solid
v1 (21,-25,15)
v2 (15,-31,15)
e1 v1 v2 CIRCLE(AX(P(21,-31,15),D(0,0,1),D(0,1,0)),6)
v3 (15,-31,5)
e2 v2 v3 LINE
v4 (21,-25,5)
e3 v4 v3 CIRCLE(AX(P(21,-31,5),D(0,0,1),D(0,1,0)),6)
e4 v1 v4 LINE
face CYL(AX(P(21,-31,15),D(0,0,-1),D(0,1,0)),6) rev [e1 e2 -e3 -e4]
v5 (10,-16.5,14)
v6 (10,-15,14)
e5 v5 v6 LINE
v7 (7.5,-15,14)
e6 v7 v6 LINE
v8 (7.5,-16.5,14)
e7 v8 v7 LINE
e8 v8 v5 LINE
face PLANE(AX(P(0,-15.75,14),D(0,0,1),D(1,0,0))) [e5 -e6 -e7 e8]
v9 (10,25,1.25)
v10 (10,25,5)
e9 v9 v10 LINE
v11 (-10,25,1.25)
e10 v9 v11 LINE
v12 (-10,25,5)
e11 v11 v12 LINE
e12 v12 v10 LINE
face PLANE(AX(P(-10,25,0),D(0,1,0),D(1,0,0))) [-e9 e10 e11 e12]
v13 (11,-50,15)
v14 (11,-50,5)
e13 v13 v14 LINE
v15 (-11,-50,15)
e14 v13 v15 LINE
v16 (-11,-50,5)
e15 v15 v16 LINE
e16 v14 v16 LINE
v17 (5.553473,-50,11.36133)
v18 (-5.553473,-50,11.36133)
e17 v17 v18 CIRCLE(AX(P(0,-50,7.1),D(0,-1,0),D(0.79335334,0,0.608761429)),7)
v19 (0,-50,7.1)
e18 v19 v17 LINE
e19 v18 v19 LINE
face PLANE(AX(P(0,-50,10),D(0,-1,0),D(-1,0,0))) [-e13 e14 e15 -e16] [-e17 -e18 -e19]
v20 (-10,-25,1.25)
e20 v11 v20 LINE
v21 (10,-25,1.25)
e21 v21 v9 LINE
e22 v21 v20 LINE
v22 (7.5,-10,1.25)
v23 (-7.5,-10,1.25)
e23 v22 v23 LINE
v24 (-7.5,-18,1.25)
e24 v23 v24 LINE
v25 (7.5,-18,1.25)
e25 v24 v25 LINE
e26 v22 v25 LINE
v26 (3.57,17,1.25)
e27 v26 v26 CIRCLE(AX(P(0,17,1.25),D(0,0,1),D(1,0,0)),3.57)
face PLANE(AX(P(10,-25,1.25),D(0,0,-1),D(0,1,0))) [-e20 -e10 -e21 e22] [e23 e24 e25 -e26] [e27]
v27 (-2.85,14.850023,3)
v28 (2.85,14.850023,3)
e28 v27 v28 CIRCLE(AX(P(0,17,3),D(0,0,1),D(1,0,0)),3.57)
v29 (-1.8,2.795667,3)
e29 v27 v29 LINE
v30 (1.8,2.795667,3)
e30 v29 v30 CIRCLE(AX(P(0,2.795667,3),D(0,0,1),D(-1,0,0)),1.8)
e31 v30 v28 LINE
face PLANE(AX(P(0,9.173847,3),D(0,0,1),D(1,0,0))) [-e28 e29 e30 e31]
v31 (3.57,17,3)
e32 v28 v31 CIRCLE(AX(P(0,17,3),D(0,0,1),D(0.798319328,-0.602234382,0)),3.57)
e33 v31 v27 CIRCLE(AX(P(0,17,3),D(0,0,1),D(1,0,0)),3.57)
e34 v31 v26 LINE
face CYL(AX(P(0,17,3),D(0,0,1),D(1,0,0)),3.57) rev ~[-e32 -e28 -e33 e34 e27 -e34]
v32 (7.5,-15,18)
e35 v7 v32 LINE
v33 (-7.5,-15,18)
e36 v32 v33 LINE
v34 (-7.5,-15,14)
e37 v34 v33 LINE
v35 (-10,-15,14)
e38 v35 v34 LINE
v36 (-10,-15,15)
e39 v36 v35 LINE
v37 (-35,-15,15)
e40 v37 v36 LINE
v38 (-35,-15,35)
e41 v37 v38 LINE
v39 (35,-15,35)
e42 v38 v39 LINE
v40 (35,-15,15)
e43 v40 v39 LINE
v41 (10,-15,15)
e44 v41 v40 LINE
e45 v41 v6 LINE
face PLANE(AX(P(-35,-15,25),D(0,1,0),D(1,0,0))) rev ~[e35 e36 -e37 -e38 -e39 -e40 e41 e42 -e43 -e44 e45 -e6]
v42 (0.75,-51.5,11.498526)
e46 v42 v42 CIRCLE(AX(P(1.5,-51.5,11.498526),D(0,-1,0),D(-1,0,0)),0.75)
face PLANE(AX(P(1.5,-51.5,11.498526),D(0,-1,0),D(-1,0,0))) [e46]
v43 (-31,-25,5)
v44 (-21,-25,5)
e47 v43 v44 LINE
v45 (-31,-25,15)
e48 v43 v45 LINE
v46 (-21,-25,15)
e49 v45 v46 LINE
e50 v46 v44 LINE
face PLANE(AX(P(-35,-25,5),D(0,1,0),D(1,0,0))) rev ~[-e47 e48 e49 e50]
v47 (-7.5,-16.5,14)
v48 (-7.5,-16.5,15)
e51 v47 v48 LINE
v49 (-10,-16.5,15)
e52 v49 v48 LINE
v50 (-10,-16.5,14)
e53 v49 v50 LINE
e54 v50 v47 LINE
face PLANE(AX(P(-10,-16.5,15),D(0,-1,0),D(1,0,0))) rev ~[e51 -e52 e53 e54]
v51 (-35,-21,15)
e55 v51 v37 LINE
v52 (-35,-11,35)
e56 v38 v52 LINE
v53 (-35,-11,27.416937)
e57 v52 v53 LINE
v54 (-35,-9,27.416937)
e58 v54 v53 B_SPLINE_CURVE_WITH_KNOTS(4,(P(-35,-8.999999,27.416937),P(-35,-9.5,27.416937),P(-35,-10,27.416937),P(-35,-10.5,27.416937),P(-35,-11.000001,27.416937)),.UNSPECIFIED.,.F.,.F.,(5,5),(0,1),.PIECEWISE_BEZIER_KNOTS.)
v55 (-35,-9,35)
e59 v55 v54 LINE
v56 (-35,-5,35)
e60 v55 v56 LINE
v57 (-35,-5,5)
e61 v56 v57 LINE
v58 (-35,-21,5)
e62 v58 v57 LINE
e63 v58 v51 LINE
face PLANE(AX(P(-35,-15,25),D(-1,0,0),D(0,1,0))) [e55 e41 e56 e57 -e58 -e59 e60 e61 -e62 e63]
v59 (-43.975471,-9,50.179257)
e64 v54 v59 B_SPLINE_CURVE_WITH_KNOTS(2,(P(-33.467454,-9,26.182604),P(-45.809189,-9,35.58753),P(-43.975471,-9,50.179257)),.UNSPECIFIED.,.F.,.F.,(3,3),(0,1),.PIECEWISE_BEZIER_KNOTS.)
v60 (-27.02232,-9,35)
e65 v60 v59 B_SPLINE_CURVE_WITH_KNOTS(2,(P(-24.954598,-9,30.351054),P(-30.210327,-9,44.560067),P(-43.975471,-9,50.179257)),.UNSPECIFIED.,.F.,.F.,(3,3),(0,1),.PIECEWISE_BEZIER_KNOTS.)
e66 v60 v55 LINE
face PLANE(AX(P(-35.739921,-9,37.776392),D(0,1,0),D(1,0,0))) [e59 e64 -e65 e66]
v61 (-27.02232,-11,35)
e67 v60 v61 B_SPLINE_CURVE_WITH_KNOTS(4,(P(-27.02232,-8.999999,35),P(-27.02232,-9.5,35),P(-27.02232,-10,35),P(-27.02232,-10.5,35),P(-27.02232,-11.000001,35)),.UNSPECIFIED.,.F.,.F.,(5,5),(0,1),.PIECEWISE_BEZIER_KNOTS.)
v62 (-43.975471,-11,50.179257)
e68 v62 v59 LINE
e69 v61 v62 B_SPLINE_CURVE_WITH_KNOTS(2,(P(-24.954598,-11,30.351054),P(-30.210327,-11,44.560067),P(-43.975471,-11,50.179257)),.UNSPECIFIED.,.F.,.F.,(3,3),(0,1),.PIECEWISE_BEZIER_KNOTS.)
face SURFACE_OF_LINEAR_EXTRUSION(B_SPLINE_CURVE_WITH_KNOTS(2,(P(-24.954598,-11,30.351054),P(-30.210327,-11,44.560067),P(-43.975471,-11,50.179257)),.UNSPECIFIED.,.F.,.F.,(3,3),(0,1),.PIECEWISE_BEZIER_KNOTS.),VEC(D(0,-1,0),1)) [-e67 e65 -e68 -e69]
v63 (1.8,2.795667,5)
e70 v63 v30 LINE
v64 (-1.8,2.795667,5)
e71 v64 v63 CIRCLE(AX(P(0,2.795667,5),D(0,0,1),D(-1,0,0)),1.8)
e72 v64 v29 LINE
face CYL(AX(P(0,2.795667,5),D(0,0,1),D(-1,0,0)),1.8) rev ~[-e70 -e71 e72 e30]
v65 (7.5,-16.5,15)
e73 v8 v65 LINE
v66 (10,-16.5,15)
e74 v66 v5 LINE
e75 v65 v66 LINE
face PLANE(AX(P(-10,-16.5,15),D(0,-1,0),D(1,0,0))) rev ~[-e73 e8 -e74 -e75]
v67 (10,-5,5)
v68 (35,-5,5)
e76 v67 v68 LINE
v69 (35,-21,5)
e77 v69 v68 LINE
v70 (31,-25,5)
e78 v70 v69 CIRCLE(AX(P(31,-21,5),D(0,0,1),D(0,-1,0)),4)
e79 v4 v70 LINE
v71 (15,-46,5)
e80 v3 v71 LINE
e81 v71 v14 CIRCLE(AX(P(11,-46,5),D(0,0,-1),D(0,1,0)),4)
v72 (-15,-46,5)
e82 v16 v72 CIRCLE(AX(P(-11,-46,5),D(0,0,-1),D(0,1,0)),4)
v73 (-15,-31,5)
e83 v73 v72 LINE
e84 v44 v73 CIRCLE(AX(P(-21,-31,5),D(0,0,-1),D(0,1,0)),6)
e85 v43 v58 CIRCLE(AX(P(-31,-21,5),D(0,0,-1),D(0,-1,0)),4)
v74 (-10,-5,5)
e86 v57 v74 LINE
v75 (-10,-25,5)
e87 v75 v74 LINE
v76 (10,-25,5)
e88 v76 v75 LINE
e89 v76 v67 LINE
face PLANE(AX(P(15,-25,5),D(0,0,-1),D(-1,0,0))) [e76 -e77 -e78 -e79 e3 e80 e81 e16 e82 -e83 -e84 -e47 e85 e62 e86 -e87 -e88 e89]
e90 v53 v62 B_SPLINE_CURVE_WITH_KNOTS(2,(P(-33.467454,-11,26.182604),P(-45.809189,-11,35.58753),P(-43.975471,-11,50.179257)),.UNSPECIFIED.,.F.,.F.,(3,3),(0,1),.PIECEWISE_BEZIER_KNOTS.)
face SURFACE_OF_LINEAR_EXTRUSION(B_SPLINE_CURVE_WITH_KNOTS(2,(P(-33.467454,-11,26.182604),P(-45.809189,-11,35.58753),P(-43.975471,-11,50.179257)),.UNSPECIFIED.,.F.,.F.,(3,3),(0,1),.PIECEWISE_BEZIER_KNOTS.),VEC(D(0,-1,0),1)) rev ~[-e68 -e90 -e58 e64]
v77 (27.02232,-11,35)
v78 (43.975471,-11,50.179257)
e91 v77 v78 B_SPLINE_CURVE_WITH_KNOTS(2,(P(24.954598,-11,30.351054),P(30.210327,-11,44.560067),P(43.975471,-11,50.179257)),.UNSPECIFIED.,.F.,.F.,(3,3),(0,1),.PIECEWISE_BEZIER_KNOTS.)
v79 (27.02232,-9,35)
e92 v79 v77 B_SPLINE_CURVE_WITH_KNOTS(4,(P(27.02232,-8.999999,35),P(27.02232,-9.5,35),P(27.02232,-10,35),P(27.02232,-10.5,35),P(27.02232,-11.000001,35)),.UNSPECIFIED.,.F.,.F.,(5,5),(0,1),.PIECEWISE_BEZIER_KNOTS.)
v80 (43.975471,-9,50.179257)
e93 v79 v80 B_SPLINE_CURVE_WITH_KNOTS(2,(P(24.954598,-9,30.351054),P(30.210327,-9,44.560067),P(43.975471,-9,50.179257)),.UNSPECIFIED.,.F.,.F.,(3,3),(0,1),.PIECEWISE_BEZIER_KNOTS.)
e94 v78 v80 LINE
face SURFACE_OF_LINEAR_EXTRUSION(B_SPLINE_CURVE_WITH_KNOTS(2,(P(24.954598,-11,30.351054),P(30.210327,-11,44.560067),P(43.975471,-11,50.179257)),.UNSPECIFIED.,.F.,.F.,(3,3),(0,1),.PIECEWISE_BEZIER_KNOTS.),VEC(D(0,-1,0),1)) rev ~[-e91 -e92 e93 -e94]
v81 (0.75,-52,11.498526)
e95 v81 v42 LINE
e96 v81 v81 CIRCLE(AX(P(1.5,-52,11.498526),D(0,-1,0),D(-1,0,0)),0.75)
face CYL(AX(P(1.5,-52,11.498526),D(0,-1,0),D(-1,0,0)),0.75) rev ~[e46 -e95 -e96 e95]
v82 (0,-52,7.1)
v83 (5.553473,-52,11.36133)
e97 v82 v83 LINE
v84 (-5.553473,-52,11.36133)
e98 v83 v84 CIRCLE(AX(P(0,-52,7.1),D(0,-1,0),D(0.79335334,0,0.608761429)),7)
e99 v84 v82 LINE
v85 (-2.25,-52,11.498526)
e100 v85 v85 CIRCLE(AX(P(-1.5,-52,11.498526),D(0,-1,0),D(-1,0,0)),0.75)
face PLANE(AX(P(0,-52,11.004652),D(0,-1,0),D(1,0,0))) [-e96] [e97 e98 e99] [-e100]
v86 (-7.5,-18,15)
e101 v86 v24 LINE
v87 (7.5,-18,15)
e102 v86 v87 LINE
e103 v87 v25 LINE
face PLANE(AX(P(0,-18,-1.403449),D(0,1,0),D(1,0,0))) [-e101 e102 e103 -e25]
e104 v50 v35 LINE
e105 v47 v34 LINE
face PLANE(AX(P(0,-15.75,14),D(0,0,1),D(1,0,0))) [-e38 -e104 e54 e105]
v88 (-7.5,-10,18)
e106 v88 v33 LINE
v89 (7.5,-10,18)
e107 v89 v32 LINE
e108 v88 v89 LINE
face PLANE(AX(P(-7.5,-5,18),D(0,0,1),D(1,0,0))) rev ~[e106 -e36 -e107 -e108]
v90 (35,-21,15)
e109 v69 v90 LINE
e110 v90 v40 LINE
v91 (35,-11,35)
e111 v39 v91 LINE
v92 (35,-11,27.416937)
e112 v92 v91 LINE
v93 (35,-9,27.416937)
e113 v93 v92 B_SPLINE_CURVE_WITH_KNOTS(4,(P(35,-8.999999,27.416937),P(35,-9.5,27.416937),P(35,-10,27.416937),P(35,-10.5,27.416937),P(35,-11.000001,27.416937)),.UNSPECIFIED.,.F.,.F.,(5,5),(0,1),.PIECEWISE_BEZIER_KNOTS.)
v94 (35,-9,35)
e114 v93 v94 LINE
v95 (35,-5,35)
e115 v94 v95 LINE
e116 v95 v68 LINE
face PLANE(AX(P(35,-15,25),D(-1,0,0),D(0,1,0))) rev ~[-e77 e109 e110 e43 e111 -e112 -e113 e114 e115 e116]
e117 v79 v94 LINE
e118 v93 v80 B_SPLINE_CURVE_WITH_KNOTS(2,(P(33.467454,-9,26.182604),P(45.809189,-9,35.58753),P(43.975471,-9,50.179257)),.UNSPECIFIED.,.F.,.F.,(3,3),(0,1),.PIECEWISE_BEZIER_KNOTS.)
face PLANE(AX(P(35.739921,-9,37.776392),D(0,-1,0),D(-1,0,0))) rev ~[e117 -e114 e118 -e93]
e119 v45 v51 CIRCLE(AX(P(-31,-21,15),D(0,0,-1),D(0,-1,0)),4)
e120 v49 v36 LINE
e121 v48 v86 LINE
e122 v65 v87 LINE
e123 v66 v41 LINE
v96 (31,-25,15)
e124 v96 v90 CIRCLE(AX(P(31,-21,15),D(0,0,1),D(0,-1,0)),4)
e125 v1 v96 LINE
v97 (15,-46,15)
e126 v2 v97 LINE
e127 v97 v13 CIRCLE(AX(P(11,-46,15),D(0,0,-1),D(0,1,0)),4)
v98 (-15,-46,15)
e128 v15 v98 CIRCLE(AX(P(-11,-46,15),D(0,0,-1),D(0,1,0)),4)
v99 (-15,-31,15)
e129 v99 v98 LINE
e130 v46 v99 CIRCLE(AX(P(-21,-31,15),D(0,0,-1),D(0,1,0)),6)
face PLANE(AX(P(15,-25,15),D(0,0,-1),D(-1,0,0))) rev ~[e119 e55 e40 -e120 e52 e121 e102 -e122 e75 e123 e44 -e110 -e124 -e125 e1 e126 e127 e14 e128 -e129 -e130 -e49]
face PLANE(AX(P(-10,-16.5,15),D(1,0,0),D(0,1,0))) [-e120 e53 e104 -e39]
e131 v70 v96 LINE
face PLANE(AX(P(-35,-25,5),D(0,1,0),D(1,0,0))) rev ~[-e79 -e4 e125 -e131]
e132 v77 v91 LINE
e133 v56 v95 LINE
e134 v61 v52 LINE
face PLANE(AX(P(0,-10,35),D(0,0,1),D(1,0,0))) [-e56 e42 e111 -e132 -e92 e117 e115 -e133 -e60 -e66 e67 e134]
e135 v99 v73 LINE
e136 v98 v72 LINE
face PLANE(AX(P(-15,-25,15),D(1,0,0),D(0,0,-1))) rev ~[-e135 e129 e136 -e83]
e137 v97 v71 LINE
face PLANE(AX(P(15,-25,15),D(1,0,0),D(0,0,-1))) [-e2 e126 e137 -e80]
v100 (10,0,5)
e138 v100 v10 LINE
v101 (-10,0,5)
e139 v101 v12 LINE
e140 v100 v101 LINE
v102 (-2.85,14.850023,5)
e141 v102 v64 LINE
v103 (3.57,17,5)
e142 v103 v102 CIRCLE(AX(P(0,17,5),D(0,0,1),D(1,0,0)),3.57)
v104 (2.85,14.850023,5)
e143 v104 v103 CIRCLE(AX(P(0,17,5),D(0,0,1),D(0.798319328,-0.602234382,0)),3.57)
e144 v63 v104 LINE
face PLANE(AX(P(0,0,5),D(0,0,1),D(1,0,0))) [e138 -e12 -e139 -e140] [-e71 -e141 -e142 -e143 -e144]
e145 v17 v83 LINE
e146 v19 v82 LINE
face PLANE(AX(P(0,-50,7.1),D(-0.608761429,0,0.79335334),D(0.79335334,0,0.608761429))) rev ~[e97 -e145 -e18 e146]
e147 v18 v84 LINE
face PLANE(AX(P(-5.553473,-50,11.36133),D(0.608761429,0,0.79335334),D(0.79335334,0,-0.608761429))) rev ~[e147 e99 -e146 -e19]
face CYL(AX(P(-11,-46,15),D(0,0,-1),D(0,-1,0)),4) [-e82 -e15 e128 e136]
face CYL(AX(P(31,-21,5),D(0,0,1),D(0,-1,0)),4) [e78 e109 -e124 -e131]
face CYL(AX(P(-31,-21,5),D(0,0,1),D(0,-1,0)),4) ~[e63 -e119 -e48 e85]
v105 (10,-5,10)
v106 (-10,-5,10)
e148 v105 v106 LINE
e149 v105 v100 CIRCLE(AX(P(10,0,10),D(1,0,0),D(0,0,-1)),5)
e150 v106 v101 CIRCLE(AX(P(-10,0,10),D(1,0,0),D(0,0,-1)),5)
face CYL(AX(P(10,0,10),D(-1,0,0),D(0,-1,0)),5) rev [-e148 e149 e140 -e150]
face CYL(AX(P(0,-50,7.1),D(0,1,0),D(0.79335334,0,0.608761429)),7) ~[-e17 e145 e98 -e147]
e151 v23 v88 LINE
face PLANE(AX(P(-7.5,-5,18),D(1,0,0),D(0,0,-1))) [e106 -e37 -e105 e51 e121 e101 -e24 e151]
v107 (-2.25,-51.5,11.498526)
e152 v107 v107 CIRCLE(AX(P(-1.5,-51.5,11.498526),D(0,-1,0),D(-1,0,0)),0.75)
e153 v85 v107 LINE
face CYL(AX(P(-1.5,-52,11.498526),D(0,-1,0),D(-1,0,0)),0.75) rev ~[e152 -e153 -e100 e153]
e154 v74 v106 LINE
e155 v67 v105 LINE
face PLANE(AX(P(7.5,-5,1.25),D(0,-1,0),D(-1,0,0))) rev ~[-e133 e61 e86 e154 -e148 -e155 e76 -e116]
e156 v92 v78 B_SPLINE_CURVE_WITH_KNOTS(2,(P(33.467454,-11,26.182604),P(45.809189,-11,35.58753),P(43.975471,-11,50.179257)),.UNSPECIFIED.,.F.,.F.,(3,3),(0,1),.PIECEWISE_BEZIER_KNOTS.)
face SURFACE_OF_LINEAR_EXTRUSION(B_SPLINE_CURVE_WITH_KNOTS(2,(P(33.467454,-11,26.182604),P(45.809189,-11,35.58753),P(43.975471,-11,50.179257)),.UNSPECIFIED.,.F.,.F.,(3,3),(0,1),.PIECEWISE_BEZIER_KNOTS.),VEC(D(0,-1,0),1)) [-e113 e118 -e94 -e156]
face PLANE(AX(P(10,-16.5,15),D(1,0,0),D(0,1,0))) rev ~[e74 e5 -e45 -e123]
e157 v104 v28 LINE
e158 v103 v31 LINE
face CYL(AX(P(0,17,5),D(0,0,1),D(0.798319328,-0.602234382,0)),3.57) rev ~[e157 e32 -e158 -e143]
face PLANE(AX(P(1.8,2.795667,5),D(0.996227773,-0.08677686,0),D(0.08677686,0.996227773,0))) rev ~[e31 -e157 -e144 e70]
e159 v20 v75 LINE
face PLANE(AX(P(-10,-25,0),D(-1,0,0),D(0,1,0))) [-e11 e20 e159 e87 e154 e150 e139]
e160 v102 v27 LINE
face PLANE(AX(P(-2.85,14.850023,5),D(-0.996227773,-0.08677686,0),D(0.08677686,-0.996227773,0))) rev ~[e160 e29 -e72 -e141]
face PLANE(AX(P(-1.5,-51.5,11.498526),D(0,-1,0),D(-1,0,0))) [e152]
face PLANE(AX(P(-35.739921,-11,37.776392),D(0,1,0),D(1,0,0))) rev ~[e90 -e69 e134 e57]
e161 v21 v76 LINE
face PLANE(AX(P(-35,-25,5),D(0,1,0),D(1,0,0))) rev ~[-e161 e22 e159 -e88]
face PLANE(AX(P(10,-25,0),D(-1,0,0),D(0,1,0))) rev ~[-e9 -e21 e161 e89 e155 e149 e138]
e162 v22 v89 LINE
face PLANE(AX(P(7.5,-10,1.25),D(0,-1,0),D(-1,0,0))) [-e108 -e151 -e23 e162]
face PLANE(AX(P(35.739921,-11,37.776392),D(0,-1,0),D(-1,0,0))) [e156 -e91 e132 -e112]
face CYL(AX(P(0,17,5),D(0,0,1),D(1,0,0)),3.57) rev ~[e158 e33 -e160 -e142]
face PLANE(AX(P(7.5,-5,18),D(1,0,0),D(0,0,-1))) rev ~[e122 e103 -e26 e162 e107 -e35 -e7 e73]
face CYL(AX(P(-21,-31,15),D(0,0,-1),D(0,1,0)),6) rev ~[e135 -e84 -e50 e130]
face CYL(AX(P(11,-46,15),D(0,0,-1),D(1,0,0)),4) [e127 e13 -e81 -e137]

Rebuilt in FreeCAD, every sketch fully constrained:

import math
import FreeCAD as App
import Part
import Sketcher

V = App.Vector
Q = App.Units.Quantity


def edges_at(feature, points):
    """Names of the edges that pass closest to the given points."""
    edges = feature.Shape.Edges
    near = lambda p: min(range(len(edges)), key=lambda i: edges[i].distToShape(Part.Vertex(*p))[0])
    return sorted({f"Edge{near(p) + 1}" for p in points})

doc = App.newDocument("Part")
params = doc.addObject("Spreadsheet::Sheet", "Params")
for row, (alias, value) in enumerate([
    ("sketch1_width", "20 mm"),
    ("sketch1_height", "50 mm"),
    ("pad1_length", "5 mm"),
    ("sketch2_radius", "1.8 mm"),
    ("sketch2_radius2", "3.57 mm"),
    ("sketch2_length", "12.1 mm"),
    ("pocket1_length", "2 mm"),
    ("sketch3_diameter", "7.14 mm"),
    ("pocket2_length", "3 mm"),
    ("sketch4_width", "50 mm"),
    ("sketch4_height", "1.25 mm"),
    ("pocket3_length", "30 mm"),
    ("sketch5_width", "70 mm"),
    ("sketch5_height", "20 mm"),
    ("pad2_length", "20 mm"),
    ("sketch6_width", "70 mm"),
    ("sketch6_height", "10 mm"),
    ("pocket4_length", "10 mm"),
    ("sketch7_width", "30 mm"),
    ("sketch7_height", "10 mm"),
    ("pad3_length", "25 mm"),
    ("sketch8_width", "20 mm"),
    ("sketch8_height", "1.5 mm"),
    ("pocket5_length", "1 mm"),
    ("sketch9_width", "15 mm"),
    ("pocket6_length", "13 mm"),
    ("sketch10_radius", "7 mm"),
    ("pad4_length", "2 mm"),
    ("sketch11_diameter", "1.5 mm"),
    ("pocket7_length", "0.5 mm"),
    ("sketch12_width", "70 mm"),
    ("sketch12_height", "10 mm"),
    ("pad5_length", "10 mm"),
    ("pad6_length", "2 mm"),
    ("fillet_radius", "6 mm"),
    ("fillet2_radius", "4 mm"),
    ("sketch14_width", "15 mm"),
    ("sketch14_height", "5 mm"),
    ("pad7_length", "25 mm"),
    ("fillet3_radius", "5 mm"),
], start=1):
    params.set(f"A{row}", alias)
    params.set(f"B{row}", "=" + value)
    params.setAlias(f"B{row}", alias)

body = doc.addObject("PartDesign::Body", "Body")

sketch1 = body.newObject("Sketcher::SketchObject", "Sketch")
sketch1.AttachmentSupport = (doc.getObject("XY_Plane"), [""])
sketch1.MapMode = "FlatFace"
sketch1.addGeometry(Part.LineSegment(V(-10, 25, 0), V(-10, -25, 0)), False)
sketch1.addGeometry(Part.LineSegment(V(-10, -25, 0), V(10, -25, 0)), False)
sketch1.addGeometry(Part.LineSegment(V(10, -25, 0), V(10, 25, 0)), False)
sketch1.addGeometry(Part.LineSegment(V(10, 25, 0), V(-10, 25, 0)), False)
sketch1.addConstraint(Sketcher.Constraint("Coincident", 0, 2, 1, 1))
sketch1.addConstraint(Sketcher.Constraint("Coincident", 1, 2, 2, 1))
sketch1.addConstraint(Sketcher.Constraint("Coincident", 2, 2, 3, 1))
sketch1.addConstraint(Sketcher.Constraint("Coincident", 3, 2, 0, 1))
sketch1.addConstraint(Sketcher.Constraint("Vertical", 0))
sketch1.addConstraint(Sketcher.Constraint("Horizontal", 1))
sketch1.addConstraint(Sketcher.Constraint("Vertical", 2))
sketch1.addConstraint(Sketcher.Constraint("Horizontal", 3))
sketch1.addConstraint(Sketcher.Constraint("Symmetric", 0, 2, 2, 2, -1, 1))
sketch1.addConstraint(Sketcher.Constraint("DistanceX", 1, 1, 1, 2, Q("20 mm")))
sketch1.addConstraint(Sketcher.Constraint("DistanceY", 0, 2, 0, 1, Q("50 mm")))
sketch1.setExpression("Constraints[9]", "Params.sketch1_width")
sketch1.setExpression("Constraints[10]", "Params.sketch1_height")
pad1 = body.newObject("PartDesign::Pad", "Pad")
pad1.Profile = sketch1
pad1.setExpression("Length", "Params.pad1_length")

sketch2 = body.newObject("Sketcher::SketchObject", "Sketch001")
sketch2.AttachmentSupport = (doc.getObject("XY_Plane"), [""])
sketch2.MapMode = "FlatFace"
sketch2.AttachmentOffset = App.Placement(V(0, 0, 5), App.Rotation())
sketch2.addGeometry(Part.LineSegment(V(-2.9, 14.9, 0), V(-1.8, 2.8, 0)), False)
sketch2.addGeometry(Part.ArcOfCircle(Part.Circle(V(0, 2.8, 0), V(0, 0, 1), 1.8), math.radians(180), math.radians(360)), False)
sketch2.addGeometry(Part.LineSegment(V(1.8, 2.8, 0), V(2.9, 14.9, 0)), False)
sketch2.addGeometry(Part.ArcOfCircle(Part.Circle(V(0, 17, 0), V(0, 0, 1), 3.6), math.radians(-37), math.radians(0)), False)
sketch2.addGeometry(Part.ArcOfCircle(Part.Circle(V(0, 17, 0), V(0, 0, 1), 3.6), math.radians(0), math.radians(217)), False)
sketch2.addConstraint(Sketcher.Constraint("Coincident", 0, 2, 1, 1))
sketch2.addConstraint(Sketcher.Constraint("Coincident", 1, 2, 2, 1))
sketch2.addConstraint(Sketcher.Constraint("Coincident", 2, 2, 3, 1))
sketch2.addConstraint(Sketcher.Constraint("Tangent", 3, 2, 4, 1))
sketch2.addConstraint(Sketcher.Constraint("Coincident", 4, 2, 0, 1))
sketch2.addConstraint(Sketcher.Constraint("Equal", 3, 4))
sketch2.addConstraint(Sketcher.Constraint("Symmetric", 0, 2, 1, 2, -2))
sketch2.addConstraint(Sketcher.Constraint("Symmetric", 2, 2, 4, 2, -2))
sketch2.addConstraint(Sketcher.Constraint("Horizontal", 1, 3, 0, 2))
sketch2.addConstraint(Sketcher.Constraint("Horizontal", 4, 3, 3, 2))
sketch2.addConstraint(Sketcher.Constraint("Radius", 1, Q("1.8 mm")))
sketch2.addConstraint(Sketcher.Constraint("Radius", 3, Q("3.57 mm")))
sketch2.addConstraint(Sketcher.Constraint("DistanceY", -1, 1, 3, 3, Q("17 mm")))
sketch2.addConstraint(Sketcher.Constraint("Distance", 0, Q("12.1 mm")))
sketch2.addConstraint(Sketcher.Constraint("DistanceX", 4, 2, 2, 2, Q("5.7 mm")))
sketch2.setExpression("Constraints[10]", "Params.sketch2_radius")
sketch2.setExpression("Constraints[11]", "Params.sketch2_radius2")
sketch2.setExpression("Constraints[13]", "Params.sketch2_length")
pocket1 = body.newObject("PartDesign::Pocket", "Pocket")
pocket1.Profile = sketch2
pocket1.setExpression("Length", "Params.pocket1_length")

sketch3 = body.newObject("Sketcher::SketchObject", "Sketch002")
sketch3.AttachmentSupport = (doc.getObject("XY_Plane"), [""])
sketch3.MapMode = "FlatFace"
sketch3.AttachmentOffset = App.Placement(V(0, 0, 3), App.Rotation())
sketch3.addGeometry(Part.Circle(V(0, 17, 0), V(0, 0, 1), 3.6), False)
sketch3.addConstraint(Sketcher.Constraint("PointOnObject", 0, 3, -2))
sketch3.addConstraint(Sketcher.Constraint("Diameter", 0, Q("7.14 mm")))
sketch3.addConstraint(Sketcher.Constraint("DistanceY", -1, 1, 0, 3, Q("17 mm")))
sketch3.setExpression("Constraints[1]", "Params.sketch3_diameter")
pocket2 = body.newObject("PartDesign::Pocket", "Pocket001")
pocket2.Profile = sketch3
pocket2.setExpression("Length", "Params.pocket2_length")

sketch4 = body.newObject("Sketcher::SketchObject", "Sketch003")
sketch4.AttachmentSupport = (doc.getObject("YZ_Plane"), [""])
sketch4.MapMode = "FlatFace"
sketch4.AttachmentOffset = App.Placement(V(0, 0, 10), App.Rotation())
sketch4.addGeometry(Part.LineSegment(V(25, 1.2, 0), V(-25, 1.2, 0)), False)
sketch4.addGeometry(Part.LineSegment(V(-25, 1.2, 0), V(-25, 0, 0)), False)
sketch4.addGeometry(Part.LineSegment(V(-25, 0, 0), V(25, 0, 0)), False)
sketch4.addGeometry(Part.LineSegment(V(25, 0, 0), V(25, 1.2, 0)), False)
sketch4.addConstraint(Sketcher.Constraint("Coincident", 0, 2, 1, 1))
sketch4.addConstraint(Sketcher.Constraint("Coincident", 1, 2, 2, 1))
sketch4.addConstraint(Sketcher.Constraint("Coincident", 2, 2, 3, 1))
sketch4.addConstraint(Sketcher.Constraint("Coincident", 3, 2, 0, 1))
sketch4.addConstraint(Sketcher.Constraint("Horizontal", 0))
sketch4.addConstraint(Sketcher.Constraint("Vertical", 1))
sketch4.addConstraint(Sketcher.Constraint("Horizontal", 2))
sketch4.addConstraint(Sketcher.Constraint("Vertical", 3))
sketch4.addConstraint(Sketcher.Constraint("Symmetric", 1, 2, 2, 2, -1, 1))
sketch4.addConstraint(Sketcher.Constraint("DistanceX", 0, 2, 0, 1, Q("50 mm")))
sketch4.addConstraint(Sketcher.Constraint("DistanceY", 1, 2, 1, 1, Q("1.25 mm")))
sketch4.setExpression("Constraints[9]", "Params.sketch4_width")
sketch4.setExpression("Constraints[10]", "Params.sketch4_height")
pocket3 = body.newObject("PartDesign::Pocket", "Pocket002")
pocket3.Profile = sketch4
pocket3.setExpression("Length", "Params.pocket3_length")

sketch5 = body.newObject("Sketcher::SketchObject", "Sketch004")
sketch5.AttachmentSupport = (doc.getObject("XY_Plane"), [""])
sketch5.MapMode = "FlatFace"
sketch5.AttachmentOffset = App.Placement(V(0, 0, 5), App.Rotation())
sketch5.addGeometry(Part.LineSegment(V(-35, -5, 0), V(-35, -25, 0)), False)
sketch5.addGeometry(Part.LineSegment(V(-35, -25, 0), V(35, -25, 0)), False)
sketch5.addGeometry(Part.LineSegment(V(35, -25, 0), V(35, -5, 0)), False)
sketch5.addGeometry(Part.LineSegment(V(35, -5, 0), V(-35, -5, 0)), False)
sketch5.addConstraint(Sketcher.Constraint("Coincident", 0, 2, 1, 1))
sketch5.addConstraint(Sketcher.Constraint("Coincident", 1, 2, 2, 1))
sketch5.addConstraint(Sketcher.Constraint("Coincident", 2, 2, 3, 1))
sketch5.addConstraint(Sketcher.Constraint("Coincident", 3, 2, 0, 1))
sketch5.addConstraint(Sketcher.Constraint("Vertical", 0))
sketch5.addConstraint(Sketcher.Constraint("Horizontal", 1))
sketch5.addConstraint(Sketcher.Constraint("Vertical", 2))
sketch5.addConstraint(Sketcher.Constraint("Horizontal", 3))
sketch5.addConstraint(Sketcher.Constraint("DistanceX", 1, 1, 1, 2, Q("70 mm")))
sketch5.addConstraint(Sketcher.Constraint("DistanceY", 0, 2, 0, 1, Q("20 mm")))
sketch5.addConstraint(Sketcher.Constraint("DistanceX", 0, 2, -1, 1, Q("35 mm")))
sketch5.addConstraint(Sketcher.Constraint("DistanceY", 0, 2, -1, 1, Q("25 mm")))
sketch5.setExpression("Constraints[8]", "Params.sketch5_width")
sketch5.setExpression("Constraints[9]", "Params.sketch5_height")
pad2 = body.newObject("PartDesign::Pad", "Pad001")
pad2.Profile = sketch5
pad2.setExpression("Length", "Params.pad2_length")

sketch6 = body.newObject("Sketcher::SketchObject", "Sketch005")
sketch6.AttachmentSupport = (doc.getObject("XY_Plane"), [""])
sketch6.MapMode = "FlatFace"
sketch6.AttachmentOffset = App.Placement(V(0, 0, 25), App.Rotation())
sketch6.addGeometry(Part.LineSegment(V(-35, -15, 0), V(-35, -25, 0)), False)
sketch6.addGeometry(Part.LineSegment(V(-35, -25, 0), V(35, -25, 0)), False)
sketch6.addGeometry(Part.LineSegment(V(35, -25, 0), V(35, -15, 0)), False)
sketch6.addGeometry(Part.LineSegment(V(35, -15, 0), V(-35, -15, 0)), False)
sketch6.addConstraint(Sketcher.Constraint("Coincident", 0, 2, 1, 1))
sketch6.addConstraint(Sketcher.Constraint("Coincident", 1, 2, 2, 1))
sketch6.addConstraint(Sketcher.Constraint("Coincident", 2, 2, 3, 1))
sketch6.addConstraint(Sketcher.Constraint("Coincident", 3, 2, 0, 1))
sketch6.addConstraint(Sketcher.Constraint("Vertical", 0))
sketch6.addConstraint(Sketcher.Constraint("Horizontal", 1))
sketch6.addConstraint(Sketcher.Constraint("Vertical", 2))
sketch6.addConstraint(Sketcher.Constraint("Horizontal", 3))
sketch6.addConstraint(Sketcher.Constraint("DistanceX", 1, 1, 1, 2, Q("70 mm")))
sketch6.addConstraint(Sketcher.Constraint("DistanceY", 0, 2, 0, 1, Q("10 mm")))
sketch6.addConstraint(Sketcher.Constraint("DistanceX", 0, 2, -1, 1, Q("35 mm")))
sketch6.addConstraint(Sketcher.Constraint("DistanceY", 0, 2, -1, 1, Q("25 mm")))
sketch6.setExpression("Constraints[8]", "Params.sketch6_width")
sketch6.setExpression("Constraints[9]", "Params.sketch6_height")
pocket4 = body.newObject("PartDesign::Pocket", "Pocket003")
pocket4.Profile = sketch6
pocket4.setExpression("Length", "Params.pocket4_length")

sketch7 = body.newObject("Sketcher::SketchObject", "Sketch006")
sketch7.AttachmentSupport = (doc.getObject("XZ_Plane"), [""])
sketch7.MapMode = "FlatFace"
sketch7.AttachmentOffset = App.Placement(V(0, 0, 25), App.Rotation())
sketch7.addGeometry(Part.LineSegment(V(15, 5, 0), V(15, 15, 0)), False)
sketch7.addGeometry(Part.LineSegment(V(15, 15, 0), V(-15, 15, 0)), False)
sketch7.addGeometry(Part.LineSegment(V(-15, 15, 0), V(-15, 5, 0)), False)
sketch7.addGeometry(Part.LineSegment(V(-15, 5, 0), V(15, 5, 0)), False)
sketch7.addConstraint(Sketcher.Constraint("Coincident", 0, 2, 1, 1))
sketch7.addConstraint(Sketcher.Constraint("Coincident", 1, 2, 2, 1))
sketch7.addConstraint(Sketcher.Constraint("Coincident", 2, 2, 3, 1))
sketch7.addConstraint(Sketcher.Constraint("Coincident", 3, 2, 0, 1))
sketch7.addConstraint(Sketcher.Constraint("Vertical", 0))
sketch7.addConstraint(Sketcher.Constraint("Horizontal", 1))
sketch7.addConstraint(Sketcher.Constraint("Vertical", 2))
sketch7.addConstraint(Sketcher.Constraint("Horizontal", 3))
sketch7.addConstraint(Sketcher.Constraint("DistanceX", 1, 2, 1, 1, Q("30 mm")))
sketch7.addConstraint(Sketcher.Constraint("DistanceY", 0, 1, 0, 2, Q("10 mm")))
sketch7.addConstraint(Sketcher.Constraint("DistanceX", -1, 1, 0, 2, Q("15 mm")))
sketch7.addConstraint(Sketcher.Constraint("DistanceY", -1, 1, 0, 2, Q("15 mm")))
sketch7.setExpression("Constraints[8]", "Params.sketch7_width")
sketch7.setExpression("Constraints[9]", "Params.sketch7_height")
pad3 = body.newObject("PartDesign::Pad", "Pad002")
pad3.Profile = sketch7
pad3.setExpression("Length", "Params.pad3_length")

sketch8 = body.newObject("Sketcher::SketchObject", "Sketch007")
sketch8.AttachmentSupport = (doc.getObject("XY_Plane"), [""])
sketch8.MapMode = "FlatFace"
sketch8.AttachmentOffset = App.Placement(V(0, 0, 15), App.Rotation())
sketch8.addGeometry(Part.LineSegment(V(-10, -15, 0), V(-10, -16.5, 0)), False)
sketch8.addGeometry(Part.LineSegment(V(-10, -16.5, 0), V(10, -16.5, 0)), False)
sketch8.addGeometry(Part.LineSegment(V(10, -16.5, 0), V(10, -15, 0)), False)
sketch8.addGeometry(Part.LineSegment(V(10, -15, 0), V(-10, -15, 0)), False)
sketch8.addConstraint(Sketcher.Constraint("Coincident", 0, 2, 1, 1))
sketch8.addConstraint(Sketcher.Constraint("Coincident", 1, 2, 2, 1))
sketch8.addConstraint(Sketcher.Constraint("Coincident", 2, 2, 3, 1))
sketch8.addConstraint(Sketcher.Constraint("Coincident", 3, 2, 0, 1))
sketch8.addConstraint(Sketcher.Constraint("Vertical", 0))
sketch8.addConstraint(Sketcher.Constraint("Horizontal", 1))
sketch8.addConstraint(Sketcher.Constraint("Vertical", 2))
sketch8.addConstraint(Sketcher.Constraint("Horizontal", 3))
sketch8.addConstraint(Sketcher.Constraint("DistanceX", 1, 1, 1, 2, Q("20 mm")))
sketch8.addConstraint(Sketcher.Constraint("DistanceY", 0, 2, 0, 1, Q("1.5 mm")))
sketch8.addConstraint(Sketcher.Constraint("DistanceX", 0, 2, -1, 1, Q("10 mm")))
sketch8.addConstraint(Sketcher.Constraint("DistanceY", 2, 2, -1, 1, Q("15 mm")))
sketch8.setExpression("Constraints[8]", "Params.sketch8_width")
sketch8.setExpression("Constraints[9]", "Params.sketch8_height")
pocket5 = body.newObject("PartDesign::Pocket", "Pocket004")
pocket5.Profile = sketch8
pocket5.setExpression("Length", "Params.pocket5_length")

sketch9 = body.newObject("Sketcher::SketchObject", "Sketch008")
sketch9.AttachmentSupport = (doc.getObject("XZ_Plane"), [""])
sketch9.MapMode = "FlatFace"
sketch9.AttachmentOffset = App.Placement(V(0, 0, 5), App.Rotation())
sketch9.addGeometry(Part.LineSegment(V(-8, -21, 0), V(-8, 18, 0)), False)
sketch9.addGeometry(Part.LineSegment(V(-8, 18, 0), V(8, 18, 0)), False)
sketch9.addGeometry(Part.LineSegment(V(8, 18, 0), V(8, -21, 0)), False)
sketch9.addGeometry(Part.LineSegment(V(8, -21, 0), V(-8, -21, 0)), False)
sketch9.addConstraint(Sketcher.Constraint("Coincident", 0, 2, 1, 1))
sketch9.addConstraint(Sketcher.Constraint("Coincident", 1, 2, 2, 1))
sketch9.addConstraint(Sketcher.Constraint("Coincident", 2, 2, 3, 1))
sketch9.addConstraint(Sketcher.Constraint("Coincident", 3, 2, 0, 1))
sketch9.addConstraint(Sketcher.Constraint("Vertical", 0))
sketch9.addConstraint(Sketcher.Constraint("Horizontal", 1))
sketch9.addConstraint(Sketcher.Constraint("Vertical", 2))
sketch9.addConstraint(Sketcher.Constraint("Horizontal", 3))
sketch9.addConstraint(Sketcher.Constraint("DistanceX", 1, 1, 1, 2, Q("15 mm")))
sketch9.addConstraint(Sketcher.Constraint("DistanceY", -1, 1, 0, 2, Q("18 mm")))
sketch9.addConstraint(Sketcher.Constraint("DistanceX", 0, 2, -1, 1, Q("7.5 mm")))
sketch9.addConstraint(Sketcher.Constraint("DistanceY", 0, 1, 0, 2, Q("38.806899 mm")))
sketch9.setExpression("Constraints[8]", "Params.sketch9_width")
pocket6 = body.newObject("PartDesign::Pocket", "Pocket005")
pocket6.Profile = sketch9
pocket6.setExpression("Length", "Params.pocket6_length")
pocket6.Reversed = True

sketch10 = body.newObject("Sketcher::SketchObject", "Sketch009")
sketch10.AttachmentSupport = (doc.getObject("XZ_Plane"), [""])
sketch10.MapMode = "FlatFace"
sketch10.AttachmentOffset = App.Placement(V(0, 0, 50), App.Rotation())
sketch10.addGeometry(Part.LineSegment(V(0, 7, 0), V(6, 11, 0)), False)
sketch10.addGeometry(Part.ArcOfCircle(Part.Circle(V(0, 7, 0), V(0, 0, 1), 7), math.radians(37), math.radians(143)), False)
sketch10.addGeometry(Part.LineSegment(V(-6, 11, 0), V(0, 7, 0)), False)
sketch10.addConstraint(Sketcher.Constraint("Coincident", 0, 2, 1, 1))
sketch10.addConstraint(Sketcher.Constraint("Coincident", 1, 2, 2, 1))
sketch10.addConstraint(Sketcher.Constraint("Coincident", 2, 2, 0, 1))
sketch10.addConstraint(Sketcher.Constraint("Coincident", 2, 2, 1, 3))
sketch10.addConstraint(Sketcher.Constraint("Symmetric", 0, 2, 1, 2, -2))
sketch10.addConstraint(Sketcher.Constraint("Radius", 1, Q("7 mm")))
sketch10.addConstraint(Sketcher.Constraint("Angle", 0, Q("37.5 deg")))
sketch10.addConstraint(Sketcher.Constraint("DistanceY", -1, 1, 1, 3, Q("7.1 mm")))
sketch10.setExpression("Constraints[5]", "Params.sketch10_radius")
pad4 = body.newObject("PartDesign::Pad", "Pad003")
pad4.Profile = sketch10
pad4.setExpression("Length", "Params.pad4_length")

sketch11 = body.newObject("Sketcher::SketchObject", "Sketch010")
sketch11.AttachmentSupport = (doc.getObject("XZ_Plane"), [""])
sketch11.MapMode = "FlatFace"
sketch11.AttachmentOffset = App.Placement(V(0, 0, 52), App.Rotation())
sketch11.addGeometry(Part.Circle(V(1.5, 11.5, 0), V(0, 0, 1), 0.8), False)
sketch11.addGeometry(Part.Circle(V(-1.5, 11.5, 0), V(0, 0, 1), 0.8), False)
sketch11.addConstraint(Sketcher.Constraint("Equal", 0, 1))
sketch11.addConstraint(Sketcher.Constraint("Symmetric", 0, 3, 1, 3, -2))
sketch11.addConstraint(Sketcher.Constraint("Diameter", 0, Q("1.5 mm")))
sketch11.addConstraint(Sketcher.Constraint("DistanceX", 1, 3, 0, 3, Q("3 mm")))
sketch11.addConstraint(Sketcher.Constraint("DistanceY", -1, 1, 0, 3, Q("11.498526 mm")))
sketch11.setExpression("Constraints[2]", "Params.sketch11_diameter")
pocket7 = body.newObject("PartDesign::Pocket", "Pocket006")
pocket7.Profile = sketch11
pocket7.setExpression("Length", "Params.pocket7_length")

sketch12 = body.newObject("Sketcher::SketchObject", "Sketch011")
sketch12.AttachmentSupport = (doc.getObject("XY_Plane"), [""])
sketch12.MapMode = "FlatFace"
sketch12.AttachmentOffset = App.Placement(V(0, 0, 25), App.Rotation())
sketch12.addGeometry(Part.LineSegment(V(-35, -5, 0), V(-35, -15, 0)), False)
sketch12.addGeometry(Part.LineSegment(V(-35, -15, 0), V(35, -15, 0)), False)
sketch12.addGeometry(Part.LineSegment(V(35, -15, 0), V(35, -5, 0)), False)
sketch12.addGeometry(Part.LineSegment(V(35, -5, 0), V(-35, -5, 0)), False)
sketch12.addConstraint(Sketcher.Constraint("Coincident", 0, 2, 1, 1))
sketch12.addConstraint(Sketcher.Constraint("Coincident", 1, 2, 2, 1))
sketch12.addConstraint(Sketcher.Constraint("Coincident", 2, 2, 3, 1))
sketch12.addConstraint(Sketcher.Constraint("Coincident", 3, 2, 0, 1))
sketch12.addConstraint(Sketcher.Constraint("Vertical", 0))
sketch12.addConstraint(Sketcher.Constraint("Horizontal", 1))
sketch12.addConstraint(Sketcher.Constraint("Vertical", 2))
sketch12.addConstraint(Sketcher.Constraint("Horizontal", 3))
sketch12.addConstraint(Sketcher.Constraint("DistanceX", 1, 1, 1, 2, Q("70 mm")))
sketch12.addConstraint(Sketcher.Constraint("DistanceY", 0, 2, 0, 1, Q("10 mm")))
sketch12.addConstraint(Sketcher.Constraint("DistanceX", 0, 2, -1, 1, Q("35 mm")))
sketch12.addConstraint(Sketcher.Constraint("DistanceY", 0, 2, -1, 1, Q("15 mm")))
sketch12.setExpression("Constraints[8]", "Params.sketch12_width")
sketch12.setExpression("Constraints[9]", "Params.sketch12_height")
pad5 = body.newObject("PartDesign::Pad", "Pad004")
pad5.Profile = sketch12
pad5.setExpression("Length", "Params.pad5_length")

sketch13 = body.newObject("Sketcher::SketchObject", "Sketch012")
sketch13.AttachmentSupport = (doc.getObject("XZ_Plane"), [""])
sketch13.MapMode = "FlatFace"
sketch13.AttachmentOffset = App.Placement(V(0, 0, 11), App.Rotation())
sketch13.addGeometry(Part.LineSegment(V(24.954598, 30.351054, 0), V(33.467454, 26.182604, 0)), False)
sketch13.addGeometry(Part.BSplineCurve([V(33.467454, 26.182604, 0), V(45.809189, 35.58753, 0), V(43.975471, 50.179257, 0)], [3, 3], [0, 1], False, 2, [1, 1, 1], False), False)
sketch13.addGeometry(Part.BSplineCurve([V(24.954598, 30.351054, 0), V(30.210327, 44.560067, 0), V(43.975471, 50.179257, 0)], [3, 3], [0, 1], False, 2, [1, 1, 1], False), False)
sketch13.addGeometry(Part.LineSegment(V(-33.467454, 26.182604, 0), V(-24.954598, 30.351054, 0)), False)
sketch13.addGeometry(Part.BSplineCurve([V(-24.954598, 30.351054, 0), V(-30.210327, 44.560067, 0), V(-43.975471, 50.179257, 0)], [3, 3], [0, 1], False, 2, [1, 1, 1], False), False)
sketch13.addGeometry(Part.BSplineCurve([V(-33.467454, 26.182604, 0), V(-45.809189, 35.58753, 0), V(-43.975471, 50.179257, 0)], [3, 3], [0, 1], False, 2, [1, 1, 1], False), False)
sketch13.addConstraint(Sketcher.Constraint("Block", 1))
sketch13.addConstraint(Sketcher.Constraint("Block", 2))
sketch13.addConstraint(Sketcher.Constraint("Block", 4))
sketch13.addConstraint(Sketcher.Constraint("Block", 5))
sketch13.addConstraint(Sketcher.Constraint("Coincident", 0, 2, 1, 1))
sketch13.addConstraint(Sketcher.Constraint("Coincident", 2, 1, 0, 1))
sketch13.addConstraint(Sketcher.Constraint("Coincident", 3, 2, 4, 1))
sketch13.addConstraint(Sketcher.Constraint("Coincident", 5, 1, 3, 1))
pad6 = body.newObject("PartDesign::Pad", "Pad005")
pad6.Profile = sketch13
pad6.setExpression("Length", "Params.pad6_length")
pad6.Reversed = True
doc.recompute()

fillet = body.newObject("PartDesign::Fillet", "Fillet")
fillet.Base = (pad6, edges_at(pad6, [(-15, -25, 10), (15, -25, 10)]))
fillet.setExpression("Radius", "Params.fillet_radius")
doc.recompute()

fillet2 = body.newObject("PartDesign::Fillet", "Fillet001")
fillet2.Base = (fillet, edges_at(fillet, [
    (35, -25, 10),
    (-35, -25, 10),
    (-15, -50, 10),
    (15, -50, 10),
]))
fillet2.setExpression("Radius", "Params.fillet2_radius")

sketch14 = body.newObject("Sketcher::SketchObject", "Sketch013")
sketch14.AttachmentSupport = (doc.getObject("XY_Plane"), [""])
sketch14.MapMode = "FlatFace"
sketch14.AttachmentOffset = App.Placement(V(0, 0, 1.25), App.Rotation())
sketch14.addGeometry(Part.LineSegment(V(8, -5, 0), V(8, -10, 0)), False)
sketch14.addGeometry(Part.LineSegment(V(8, -10, 0), V(-8, -10, 0)), False)
sketch14.addGeometry(Part.LineSegment(V(-8, -10, 0), V(-8, -5, 0)), False)
sketch14.addGeometry(Part.LineSegment(V(-8, -5, 0), V(8, -5, 0)), False)
sketch14.addConstraint(Sketcher.Constraint("Coincident", 0, 2, 1, 1))
sketch14.addConstraint(Sketcher.Constraint("Coincident", 1, 2, 2, 1))
sketch14.addConstraint(Sketcher.Constraint("Coincident", 2, 2, 3, 1))
sketch14.addConstraint(Sketcher.Constraint("Coincident", 3, 2, 0, 1))
sketch14.addConstraint(Sketcher.Constraint("Vertical", 0))
sketch14.addConstraint(Sketcher.Constraint("Horizontal", 1))
sketch14.addConstraint(Sketcher.Constraint("Vertical", 2))
sketch14.addConstraint(Sketcher.Constraint("Horizontal", 3))
sketch14.addConstraint(Sketcher.Constraint("DistanceX", 1, 2, 1, 1, Q("15 mm")))
sketch14.addConstraint(Sketcher.Constraint("DistanceY", 0, 2, 0, 1, Q("5 mm")))
sketch14.addConstraint(Sketcher.Constraint("DistanceY", 0, 2, -1, 1, Q("10 mm")))
sketch14.addConstraint(Sketcher.Constraint("DistanceX", -1, 1, 0, 2, Q("7.5 mm")))
sketch14.setExpression("Constraints[8]", "Params.sketch14_width")
sketch14.setExpression("Constraints[9]", "Params.sketch14_height")
pad7 = body.newObject("PartDesign::Pad", "Pad006")
pad7.Profile = sketch14
pad7.setExpression("Length", "Params.pad7_length")
doc.recompute()

fillet3 = body.newObject("PartDesign::Fillet", "Fillet002")
fillet3.Base = (pad7, edges_at(pad7, [(0, -5, 5)]))
fillet3.setExpression("Radius", "Params.fillet3_radius")

doc.recompute()
